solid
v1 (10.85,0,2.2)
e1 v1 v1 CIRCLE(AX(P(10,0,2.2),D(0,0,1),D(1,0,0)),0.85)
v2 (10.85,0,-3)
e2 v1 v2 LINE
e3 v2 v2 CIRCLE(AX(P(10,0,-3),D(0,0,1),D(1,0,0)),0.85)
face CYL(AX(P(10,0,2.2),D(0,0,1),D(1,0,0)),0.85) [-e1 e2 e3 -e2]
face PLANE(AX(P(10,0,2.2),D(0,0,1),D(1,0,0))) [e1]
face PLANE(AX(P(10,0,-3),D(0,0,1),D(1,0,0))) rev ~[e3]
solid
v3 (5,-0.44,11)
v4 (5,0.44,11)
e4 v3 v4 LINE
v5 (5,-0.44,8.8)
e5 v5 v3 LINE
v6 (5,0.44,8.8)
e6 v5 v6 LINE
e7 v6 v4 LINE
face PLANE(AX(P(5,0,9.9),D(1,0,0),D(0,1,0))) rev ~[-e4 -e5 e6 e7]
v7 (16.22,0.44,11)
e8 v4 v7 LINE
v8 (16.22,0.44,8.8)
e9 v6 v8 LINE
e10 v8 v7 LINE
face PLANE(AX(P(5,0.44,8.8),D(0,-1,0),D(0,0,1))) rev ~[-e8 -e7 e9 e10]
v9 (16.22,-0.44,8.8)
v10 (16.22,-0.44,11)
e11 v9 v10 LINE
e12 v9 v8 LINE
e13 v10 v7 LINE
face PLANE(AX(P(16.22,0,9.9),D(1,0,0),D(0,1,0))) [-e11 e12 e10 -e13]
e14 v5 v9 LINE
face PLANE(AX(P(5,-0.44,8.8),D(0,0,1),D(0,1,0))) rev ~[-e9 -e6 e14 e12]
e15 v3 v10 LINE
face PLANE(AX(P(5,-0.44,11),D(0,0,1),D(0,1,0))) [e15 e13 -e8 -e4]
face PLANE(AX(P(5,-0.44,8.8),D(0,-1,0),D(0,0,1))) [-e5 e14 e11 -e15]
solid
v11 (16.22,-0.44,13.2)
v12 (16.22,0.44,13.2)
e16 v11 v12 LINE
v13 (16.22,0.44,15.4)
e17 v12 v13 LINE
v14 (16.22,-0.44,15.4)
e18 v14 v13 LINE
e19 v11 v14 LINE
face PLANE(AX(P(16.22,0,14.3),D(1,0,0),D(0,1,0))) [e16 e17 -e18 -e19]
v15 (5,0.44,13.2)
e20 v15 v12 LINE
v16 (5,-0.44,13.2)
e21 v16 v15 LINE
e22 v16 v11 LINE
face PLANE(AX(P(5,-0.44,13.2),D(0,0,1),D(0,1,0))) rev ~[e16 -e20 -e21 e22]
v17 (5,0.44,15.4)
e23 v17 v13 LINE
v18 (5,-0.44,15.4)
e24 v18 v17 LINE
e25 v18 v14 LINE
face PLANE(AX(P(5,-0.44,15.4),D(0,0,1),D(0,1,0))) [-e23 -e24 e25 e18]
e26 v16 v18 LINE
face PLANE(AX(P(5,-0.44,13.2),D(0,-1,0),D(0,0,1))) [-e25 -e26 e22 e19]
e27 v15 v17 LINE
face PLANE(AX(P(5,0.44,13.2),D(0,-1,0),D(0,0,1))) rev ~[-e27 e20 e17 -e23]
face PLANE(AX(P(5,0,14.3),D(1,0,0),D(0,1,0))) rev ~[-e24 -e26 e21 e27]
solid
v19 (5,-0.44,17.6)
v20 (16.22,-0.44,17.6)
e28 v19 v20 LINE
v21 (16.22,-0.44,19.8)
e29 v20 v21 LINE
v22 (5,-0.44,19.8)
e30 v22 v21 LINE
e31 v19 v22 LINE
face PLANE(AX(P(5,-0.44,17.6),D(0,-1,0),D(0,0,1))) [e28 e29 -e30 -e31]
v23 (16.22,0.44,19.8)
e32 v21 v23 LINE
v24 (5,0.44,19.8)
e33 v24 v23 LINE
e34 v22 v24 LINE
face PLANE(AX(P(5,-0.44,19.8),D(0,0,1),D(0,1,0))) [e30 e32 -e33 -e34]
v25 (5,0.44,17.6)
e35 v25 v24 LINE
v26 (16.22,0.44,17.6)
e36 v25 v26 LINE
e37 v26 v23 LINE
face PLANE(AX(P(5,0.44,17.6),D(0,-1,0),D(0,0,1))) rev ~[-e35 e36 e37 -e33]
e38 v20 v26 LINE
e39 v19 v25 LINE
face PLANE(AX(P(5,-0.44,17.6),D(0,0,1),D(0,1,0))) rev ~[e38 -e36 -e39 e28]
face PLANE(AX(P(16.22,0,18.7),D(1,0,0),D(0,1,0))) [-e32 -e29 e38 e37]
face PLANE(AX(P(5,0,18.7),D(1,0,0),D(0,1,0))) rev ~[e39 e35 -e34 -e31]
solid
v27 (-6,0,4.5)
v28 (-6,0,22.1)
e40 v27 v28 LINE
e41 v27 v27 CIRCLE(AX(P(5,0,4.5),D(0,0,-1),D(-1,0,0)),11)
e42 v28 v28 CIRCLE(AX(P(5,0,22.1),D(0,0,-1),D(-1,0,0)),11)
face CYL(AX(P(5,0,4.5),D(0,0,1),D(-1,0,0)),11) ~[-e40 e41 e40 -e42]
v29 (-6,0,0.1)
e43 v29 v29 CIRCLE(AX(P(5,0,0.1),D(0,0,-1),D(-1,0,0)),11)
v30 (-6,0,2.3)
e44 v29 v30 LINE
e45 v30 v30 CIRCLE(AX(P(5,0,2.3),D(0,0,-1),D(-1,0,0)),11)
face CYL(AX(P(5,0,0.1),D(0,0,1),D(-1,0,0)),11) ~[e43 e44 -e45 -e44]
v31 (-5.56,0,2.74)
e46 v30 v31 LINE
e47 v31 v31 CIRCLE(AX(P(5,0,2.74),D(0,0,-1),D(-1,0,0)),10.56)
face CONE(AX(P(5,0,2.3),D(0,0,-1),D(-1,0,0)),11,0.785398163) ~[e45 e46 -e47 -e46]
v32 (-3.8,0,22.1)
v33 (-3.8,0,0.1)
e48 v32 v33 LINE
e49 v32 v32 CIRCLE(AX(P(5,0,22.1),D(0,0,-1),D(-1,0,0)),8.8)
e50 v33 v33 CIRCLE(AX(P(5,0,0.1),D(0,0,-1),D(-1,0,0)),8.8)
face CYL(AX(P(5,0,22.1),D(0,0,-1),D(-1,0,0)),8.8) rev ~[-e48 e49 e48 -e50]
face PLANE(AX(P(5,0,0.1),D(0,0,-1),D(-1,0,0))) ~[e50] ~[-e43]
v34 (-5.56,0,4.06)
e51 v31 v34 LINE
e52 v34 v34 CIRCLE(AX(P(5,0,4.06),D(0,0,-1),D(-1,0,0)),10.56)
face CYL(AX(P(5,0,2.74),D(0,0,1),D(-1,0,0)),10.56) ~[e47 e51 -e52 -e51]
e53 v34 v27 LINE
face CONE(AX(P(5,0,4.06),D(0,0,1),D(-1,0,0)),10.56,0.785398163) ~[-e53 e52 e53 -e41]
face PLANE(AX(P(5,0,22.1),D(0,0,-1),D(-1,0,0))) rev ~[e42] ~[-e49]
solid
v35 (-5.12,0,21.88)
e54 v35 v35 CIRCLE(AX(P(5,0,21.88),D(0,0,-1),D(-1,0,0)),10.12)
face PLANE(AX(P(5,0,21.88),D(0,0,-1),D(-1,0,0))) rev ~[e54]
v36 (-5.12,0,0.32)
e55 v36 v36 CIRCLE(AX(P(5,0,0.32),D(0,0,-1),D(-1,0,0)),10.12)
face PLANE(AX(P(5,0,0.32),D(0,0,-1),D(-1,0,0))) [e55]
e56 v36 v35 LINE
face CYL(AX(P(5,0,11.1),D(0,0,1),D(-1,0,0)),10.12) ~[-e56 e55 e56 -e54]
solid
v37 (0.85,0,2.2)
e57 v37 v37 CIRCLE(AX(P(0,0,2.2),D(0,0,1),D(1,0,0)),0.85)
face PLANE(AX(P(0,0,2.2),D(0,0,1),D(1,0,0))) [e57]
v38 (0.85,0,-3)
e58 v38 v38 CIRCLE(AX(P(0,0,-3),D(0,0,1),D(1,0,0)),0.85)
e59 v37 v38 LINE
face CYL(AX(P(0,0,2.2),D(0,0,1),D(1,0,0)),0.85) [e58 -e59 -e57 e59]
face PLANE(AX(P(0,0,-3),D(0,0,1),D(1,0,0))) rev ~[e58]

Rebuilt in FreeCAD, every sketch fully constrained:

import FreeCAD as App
import Part
import Sketcher


def add_polygon(sketch, points):
    """Adds a closed chain of lines whose ends are joined by coincident constraints."""
    first, n = sketch.GeometryCount, len(points)
    for a, b in zip(points, points[1:] + points[:1]):
        sketch.addGeometry(Part.LineSegment(App.Vector(*a, 0), App.Vector(*b, 0)), False)
    for i in range(n):
        sketch.addConstraint(Sketcher.Constraint("Coincident", first + i, 2, first + (i + 1) % n, 1))

doc = App.newDocument("Part")
body = doc.addObject("PartDesign::Body", "Body")

# Sketch on XZ plane
sketch1 = body.newObject("Sketcher::SketchObject", "Sketch")
sketch1.AttachmentSupport = (doc.getObject("XZ_Plane"), [""])
sketch1.MapMode = "FlatFace"
add_polygon(sketch1, [(-6, 2.3), (-6, 0.1), (-3.8, 0.1), (-3.8, 22.1), (-6, 22.1), (-6, 4.5), (-5.6, 4.1), (-5.6, 2.7)])  # lines 0-7
sketch1.addGeometry(Part.LineSegment(App.Vector(5, 22.1, 0), App.Vector(5, 0.1, 0)), True)  # axis
sketch1.addConstraint(Sketcher.Constraint("Vertical", 0))
sketch1.addConstraint(Sketcher.Constraint("Horizontal", 1))
sketch1.addConstraint(Sketcher.Constraint("Vertical", 2))
sketch1.addConstraint(Sketcher.Constraint("Horizontal", 3))
sketch1.addConstraint(Sketcher.Constraint("Vertical", 4))
sketch1.addConstraint(Sketcher.Constraint("Vertical", 6))
sketch1.addConstraint(Sketcher.Constraint("Vertical", 8))
sketch1.addConstraint(Sketcher.Constraint("Perpendicular", 5, 7))
sketch1.addConstraint(Sketcher.Constraint("Horizontal", 3, 2, 8, 1))
sketch1.addConstraint(Sketcher.Constraint("Horizontal", 1, 2, 8, 2))
sketch1.addConstraint(Sketcher.Constraint("Vertical", 0, 2, 3, 2))
sketch1.addConstraint(Sketcher.Constraint("Equal", 3, 0))
sketch1.addConstraint(Sketcher.Constraint("Equal", 5, 7))
sketch1.addConstraint(Sketcher.Constraint("DistanceY", 2, 1, 2, 2, 22.0))
sketch1.addConstraint(Sketcher.Constraint("DistanceX", 1, 1, 1, 2, 2.2))
sketch1.addConstraint(Sketcher.Constraint("DistanceY", 4, 2, 4, 1, 17.6))
sketch1.addConstraint(Sketcher.Constraint("DistanceX", 0, 2, -1, 1, 6.0))
sketch1.addConstraint(Sketcher.Constraint("DistanceX", -1, 1, 8, 1, 5.0))
sketch1.addConstraint(Sketcher.Constraint("DistanceY", 6, 2, 6, 1, 1.32))
sketch1.addConstraint(Sketcher.Constraint("DistanceY", -1, 1, 0, 2, 0.1))
revolution = body.newObject("PartDesign::Revolution", "Revolution")
revolution.Profile = sketch1
revolution.ReferenceAxis = (sketch1, ["Axis0"])
revolution.Angle = 360
body2 = doc.addObject("PartDesign::Body", "Body001")

# Sketch on XZ plane
sketch2 = body2.newObject("Sketcher::SketchObject", "Sketch001")
sketch2.AttachmentSupport = (doc.getObject("XZ_Plane001"), [""])
sketch2.MapMode = "FlatFace"
add_polygon(sketch2, [(-5, 22), (-5, 0), (5, 0), (5, 22)])  # lines 0-3
sketch2.addGeometry(Part.LineSegment(App.Vector(5, 22, 0), App.Vector(5, 0, 0)), True)  # axis
sketch2.addConstraint(Sketcher.Constraint("Vertical", 0))
sketch2.addConstraint(Sketcher.Constraint("Horizontal", 1))
sketch2.addConstraint(Sketcher.Constraint("Vertical", 2))
sketch2.addConstraint(Sketcher.Constraint("Horizontal", 3))
sketch2.addConstraint(Sketcher.Constraint("Vertical", 4))
sketch2.addConstraint(Sketcher.Constraint("Coincident", 4, 1, 2, 2))
sketch2.addConstraint(Sketcher.Constraint("Horizontal", 0, 2, 4, 2))
sketch2.addConstraint(Sketcher.Constraint("DistanceX", -1, 1, 1, 2, 5.0))
sketch2.addConstraint(Sketcher.Constraint("DistanceX", 1, 1, 1, 2, 10.12))
sketch2.addConstraint(Sketcher.Constraint("DistanceY", 0, 2, 0, 1, 21.56))
sketch2.addConstraint(Sketcher.Constraint("DistanceY", -1, 1, 0, 2, 0.32))
revolution2 = body2.newObject("PartDesign::Revolution", "Revolution001")
revolution2.Profile = sketch2
revolution2.ReferenceAxis = (sketch2, ["Axis0"])
revolution2.Angle = 360
body3 = doc.addObject("PartDesign::Body", "Body002")
body3.AllowCompound = True

# Sketch on XY plane
sketch3 = body3.newObject("Sketcher::SketchObject", "Sketch002")
sketch3.AttachmentSupport = (doc.getObject("XY_Plane002"), [""])
sketch3.MapMode = "FlatFace"
sketch3.AttachmentOffset = App.Placement(App.Vector(0, 0, 2.2), App.Rotation())
sketch3.addGeometry(Part.Circle(App.Vector(0, 0, 0), App.Vector(0, 0, 1), 0.8), False)
sketch3.addGeometry(Part.Circle(App.Vector(10, 0, 0), App.Vector(0, 0, 1), 0.8), False)
sketch3.addConstraint(Sketcher.Constraint("Coincident", 0, 3, -1, 1))
sketch3.addConstraint(Sketcher.Constraint("Equal", 0, 1))
sketch3.addConstraint(Sketcher.Constraint("PointOnObject", 1, 3, -1))
sketch3.addConstraint(Sketcher.Constraint("Diameter", 0, 1.7))
sketch3.addConstraint(Sketcher.Constraint("DistanceX", -1, 1, 1, 3, 10.0))
pad1 = body3.newObject("PartDesign::Pad", "Pad")
pad1.Profile = sketch3
pad1.Length = 5.2
pad1.Reversed = True
body4 = doc.addObject("PartDesign::Body", "Body003")
body4.AllowCompound = True

# Sketch on YZ plane
sketch4 = body4.newObject("Sketcher::SketchObject", "Sketch003")
sketch4.AttachmentSupport = (doc.getObject("YZ_Plane003"), [""])
sketch4.MapMode = "FlatFace"
sketch4.AttachmentOffset = App.Placement(App.Vector(0, 0, 5), App.Rotation())
add_polygon(sketch4, [(-0.4, 11), (-0.4, 8.8), (0.4, 8.8), (0.4, 11)])  # lines 0-3
add_polygon(sketch4, [(-0.4, 15.4), (-0.4, 13.2), (0.4, 13.2), (0.4, 15.4)])  # lines 4-7
add_polygon(sketch4, [(-0.4, 19.8), (-0.4, 17.6), (0.4, 17.6), (0.4, 19.8)])  # lines 8-11
sketch4.addConstraint(Sketcher.Constraint("Vertical", 0))
sketch4.addConstraint(Sketcher.Constraint("Horizontal", 1))
sketch4.addConstraint(Sketcher.Constraint("Vertical", 2))
sketch4.addConstraint(Sketcher.Constraint("Horizontal", 3))
sketch4.addConstraint(Sketcher.Constraint("Vertical", 4))
sketch4.addConstraint(Sketcher.Constraint("Horizontal", 5))
sketch4.addConstraint(Sketcher.Constraint("Vertical", 6))
sketch4.addConstraint(Sketcher.Constraint("Horizontal", 7))
sketch4.addConstraint(Sketcher.Constraint("Vertical", 8))
sketch4.addConstraint(Sketcher.Constraint("Horizontal", 9))
sketch4.addConstraint(Sketcher.Constraint("Vertical", 10))
sketch4.addConstraint(Sketcher.Constraint("Horizontal", 11))
sketch4.addConstraint(Sketcher.Constraint("Vertical", 3, 2, 4, 2))
sketch4.addConstraint(Sketcher.Constraint("Vertical", 2, 2, 5, 2))
sketch4.addConstraint(Sketcher.Constraint("Vertical", 7, 2, 8, 2))
sketch4.addConstraint(Sketcher.Constraint("Vertical", 6, 2, 9, 2))
sketch4.addConstraint(Sketcher.Constraint("Equal", 2, 4))
sketch4.addConstraint(Sketcher.Constraint("Equal", 6, 8))
sketch4.addConstraint(Sketcher.Constraint("DistanceY", 0, 2, 0, 1, 2.2))
sketch4.addConstraint(Sketcher.Constraint("DistanceY", -1, 1, 2, 2, 11.0))
sketch4.addConstraint(Sketcher.Constraint("DistanceX", 1, 1, 1, 2, 0.88))
sketch4.addConstraint(Sketcher.Constraint("DistanceY", -1, 1, 4, 2, 13.2))
sketch4.addConstraint(Sketcher.Constraint("DistanceY", -1, 1, 8, 2, 17.6))
sketch4.addConstraint(Sketcher.Constraint("DistanceX", 0, 2, -1, 1, 0.44))
pad2 = body4.newObject("PartDesign::Pad", "Pad001")
pad2.Profile = sketch4
pad2.Length = 11.22

doc.recompute()
